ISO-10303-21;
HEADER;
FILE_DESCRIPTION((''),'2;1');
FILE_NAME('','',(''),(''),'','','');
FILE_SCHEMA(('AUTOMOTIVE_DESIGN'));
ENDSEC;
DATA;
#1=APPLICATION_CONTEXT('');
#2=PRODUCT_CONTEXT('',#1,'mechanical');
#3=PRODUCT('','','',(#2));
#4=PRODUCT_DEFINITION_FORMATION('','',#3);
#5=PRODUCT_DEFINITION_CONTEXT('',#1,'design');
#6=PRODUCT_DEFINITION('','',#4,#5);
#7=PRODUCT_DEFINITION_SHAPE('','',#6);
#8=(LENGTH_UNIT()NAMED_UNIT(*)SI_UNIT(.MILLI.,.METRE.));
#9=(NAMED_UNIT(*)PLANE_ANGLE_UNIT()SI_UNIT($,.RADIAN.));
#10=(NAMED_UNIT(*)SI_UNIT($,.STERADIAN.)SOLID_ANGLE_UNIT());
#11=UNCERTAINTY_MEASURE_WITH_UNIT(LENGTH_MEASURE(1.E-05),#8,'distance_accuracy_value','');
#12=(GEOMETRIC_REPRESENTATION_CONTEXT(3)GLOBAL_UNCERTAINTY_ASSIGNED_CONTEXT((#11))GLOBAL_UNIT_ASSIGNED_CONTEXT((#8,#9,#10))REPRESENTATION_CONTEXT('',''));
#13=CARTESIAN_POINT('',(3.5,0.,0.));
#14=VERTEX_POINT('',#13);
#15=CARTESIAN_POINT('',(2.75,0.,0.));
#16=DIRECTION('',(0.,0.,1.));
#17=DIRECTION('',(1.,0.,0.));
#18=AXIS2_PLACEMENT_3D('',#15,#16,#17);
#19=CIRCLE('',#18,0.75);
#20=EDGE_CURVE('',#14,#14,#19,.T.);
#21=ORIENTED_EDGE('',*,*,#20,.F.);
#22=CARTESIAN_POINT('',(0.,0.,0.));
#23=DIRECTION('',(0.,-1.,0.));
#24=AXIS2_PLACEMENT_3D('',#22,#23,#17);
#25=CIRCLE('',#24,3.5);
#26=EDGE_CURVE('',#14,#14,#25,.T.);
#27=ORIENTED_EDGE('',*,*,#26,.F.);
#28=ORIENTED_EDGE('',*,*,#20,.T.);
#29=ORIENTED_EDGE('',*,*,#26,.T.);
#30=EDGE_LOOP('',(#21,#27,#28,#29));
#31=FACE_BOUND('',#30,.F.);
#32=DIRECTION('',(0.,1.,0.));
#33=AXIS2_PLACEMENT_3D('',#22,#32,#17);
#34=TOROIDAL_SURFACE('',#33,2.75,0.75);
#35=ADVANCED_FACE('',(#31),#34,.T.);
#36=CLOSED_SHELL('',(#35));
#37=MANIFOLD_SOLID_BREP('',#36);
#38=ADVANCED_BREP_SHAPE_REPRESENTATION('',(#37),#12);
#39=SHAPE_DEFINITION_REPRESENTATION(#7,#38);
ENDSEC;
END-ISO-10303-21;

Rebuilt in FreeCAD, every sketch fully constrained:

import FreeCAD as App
import Part
import Sketcher
from FreeCAD import Vector
Q = App.Units.Quantity

doc = App.newDocument("Part")
body = doc.addObject("PartDesign::Body", "Body")

# Sketch on XY plane
sketch1 = body.newObject("Sketcher::SketchObject", "Sketch")
sketch1.AttachmentSupport = (doc.getObject("XY_Plane"), [""])
sketch1.MapMode = "FlatFace"
sketch1.addGeometry(Part.Circle(Vector(2.8, 0, 0), Vector(0, 0, 1), 0.8), False)
sketch1.addConstraint([
    Sketcher.Constraint("PointOnObject", 0, 3, -1),
    Sketcher.Constraint("Diameter", 0, Q("1.5 mm")),
    Sketcher.Constraint("DistanceX", -1, 1, 0, 3, Q("2.75 mm")),
])
revolution = body.newObject("PartDesign::Revolution", "Revolution")
revolution.Profile = sketch1
revolution.ReferenceAxis = (sketch1, ["V_Axis"])
revolution.Angle = 360

doc.recompute()
